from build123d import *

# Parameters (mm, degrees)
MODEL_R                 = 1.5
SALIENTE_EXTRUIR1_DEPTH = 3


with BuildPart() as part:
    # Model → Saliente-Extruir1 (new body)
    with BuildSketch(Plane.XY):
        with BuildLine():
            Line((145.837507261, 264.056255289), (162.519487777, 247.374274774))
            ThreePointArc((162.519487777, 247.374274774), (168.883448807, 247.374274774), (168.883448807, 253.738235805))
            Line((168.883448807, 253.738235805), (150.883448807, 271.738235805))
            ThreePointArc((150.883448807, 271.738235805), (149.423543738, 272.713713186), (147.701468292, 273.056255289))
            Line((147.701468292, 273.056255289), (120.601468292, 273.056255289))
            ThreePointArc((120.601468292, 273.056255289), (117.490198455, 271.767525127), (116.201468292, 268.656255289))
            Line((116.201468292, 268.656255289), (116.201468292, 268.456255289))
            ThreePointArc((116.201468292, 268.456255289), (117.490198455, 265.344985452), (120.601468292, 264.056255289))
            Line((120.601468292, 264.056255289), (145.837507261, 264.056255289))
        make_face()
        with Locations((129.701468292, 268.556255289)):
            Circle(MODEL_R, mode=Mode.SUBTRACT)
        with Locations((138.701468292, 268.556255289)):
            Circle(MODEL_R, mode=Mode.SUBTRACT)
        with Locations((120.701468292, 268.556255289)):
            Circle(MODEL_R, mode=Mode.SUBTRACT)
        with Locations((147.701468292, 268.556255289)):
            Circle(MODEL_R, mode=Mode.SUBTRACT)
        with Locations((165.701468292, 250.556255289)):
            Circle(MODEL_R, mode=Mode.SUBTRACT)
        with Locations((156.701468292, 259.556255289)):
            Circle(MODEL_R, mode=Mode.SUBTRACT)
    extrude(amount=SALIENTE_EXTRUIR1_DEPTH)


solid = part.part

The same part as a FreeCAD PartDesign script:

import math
import FreeCAD as App
import Part
import Sketcher
from FreeCAD import Vector
Q = App.Units.Quantity

doc = App.newDocument("Part")
body = doc.addObject("PartDesign::Body", "Body")

sketch1 = body.newObject("Sketcher::SketchObject", "Sketch")
sketch1.AttachmentSupport = (doc.getObject("XY_Plane"), [""])
sketch1.MapMode = "FlatFace"
sketch1.addGeometry(Part.LineSegment(Vector(145.84, 264.06, 0), Vector(162.52, 247.37, 0)), False)
sketch1.addGeometry(Part.ArcOfCircle(Part.Circle(Vector(165.7, 250.56, 0), Vector(0, 0, 1), 4.5), math.radians(-135), math.radians(45)), False)
sketch1.addGeometry(Part.LineSegment(Vector(168.88, 253.74, 0), Vector(150.88, 271.74, 0)), False)
sketch1.addGeometry(Part.ArcOfCircle(Part.Circle(Vector(147.7, 268.56, 0), Vector(0, 0, 1), 4.5), math.radians(45), math.radians(90)), False)
sketch1.addGeometry(Part.LineSegment(Vector(147.7, 273.06, 0), Vector(120.6, 273.06, 0)), False)
sketch1.addGeometry(Part.ArcOfCircle(Part.Circle(Vector(120.6, 268.66, 0), Vector(0, 0, 1), 4.4), math.radians(90), math.radians(180)), False)
sketch1.addGeometry(Part.LineSegment(Vector(116.2, 268.66, 0), Vector(116.2, 268.46, 0)), False)
sketch1.addGeometry(Part.ArcOfCircle(Part.Circle(Vector(120.6, 268.46, 0), Vector(0, 0, 1), 4.4), math.radians(-180), math.radians(-90)), False)
sketch1.addGeometry(Part.LineSegment(Vector(120.6, 264.06, 0), Vector(145.84, 264.06, 0)), False)
sketch1.addGeometry(Part.Circle(Vector(165.7, 250.56, 0), Vector(0, 0, 1), 1.5), False)
sketch1.addGeometry(Part.Circle(Vector(156.7, 259.56, 0), Vector(0, 0, 1), 1.5), False)
sketch1.addGeometry(Part.Circle(Vector(120.7, 268.56, 0), Vector(0, 0, 1), 1.5), False)
sketch1.addGeometry(Part.Circle(Vector(129.7, 268.56, 0), Vector(0, 0, 1), 1.5), False)
sketch1.addGeometry(Part.Circle(Vector(138.7, 268.56, 0), Vector(0, 0, 1), 1.5), False)
sketch1.addGeometry(Part.Circle(Vector(147.7, 268.56, 0), Vector(0, 0, 1), 1.5), False)
sketch1.addConstraint(Sketcher.Constraint("Tangent", 0, 2, 1, 1))
sketch1.addConstraint(Sketcher.Constraint("Tangent", 1, 2, 2, 1))
sketch1.addConstraint(Sketcher.Constraint("Tangent", 2, 2, 3, 1))
sketch1.addConstraint(Sketcher.Constraint("Tangent", 3, 2, 4, 1))
sketch1.addConstraint(Sketcher.Constraint("Tangent", 4, 2, 5, 1))
sketch1.addConstraint(Sketcher.Constraint("Tangent", 5, 2, 6, 1))
sketch1.addConstraint(Sketcher.Constraint("Tangent", 6, 2, 7, 1))
sketch1.addConstraint(Sketcher.Constraint("Tangent", 7, 2, 8, 1))
sketch1.addConstraint(Sketcher.Constraint("Coincident", 8, 2, 0, 1))
sketch1.addConstraint(Sketcher.Constraint("Horizontal", 4))
sketch1.addConstraint(Sketcher.Constraint("Vertical", 6))
sketch1.addConstraint(Sketcher.Constraint("Horizontal", 8))
sketch1.addConstraint(Sketcher.Constraint("Coincident", 9, 3, 1, 3))
sketch1.addConstraint(Sketcher.Constraint("Coincident", 14, 3, 3, 3))
sketch1.addConstraint(Sketcher.Constraint("Equal", 1, 3))
sketch1.addConstraint(Sketcher.Constraint("Equal", 5, 7))
sketch1.addConstraint(Sketcher.Constraint("Equal", 9, 10))
sketch1.addConstraint(Sketcher.Constraint("Equal", 10, 11))
sketch1.addConstraint(Sketcher.Constraint("Equal", 11, 12))
sketch1.addConstraint(Sketcher.Constraint("Equal", 12, 13))
sketch1.addConstraint(Sketcher.Constraint("Equal", 13, 14))
sketch1.addConstraint(Sketcher.Constraint("Parallel", 0, 2))
sketch1.addConstraint(Sketcher.Constraint("Horizontal", 3, 3, 11, 3))
sketch1.addConstraint(Sketcher.Constraint("Horizontal", 11, 3, 12, 3))
sketch1.addConstraint(Sketcher.Constraint("Horizontal", 12, 3, 13, 3))
sketch1.addConstraint(Sketcher.Constraint("Diameter", 9, 3.0))
sketch1.addConstraint(Sketcher.Constraint("Radius", 1, 4.5))
sketch1.addConstraint(Sketcher.Constraint("Radius", 5, 4.4))
sketch1.addConstraint(Sketcher.Constraint("Angle", 0, Q("-45 deg")))
sketch1.addConstraint(Sketcher.Constraint("DistanceX", 4, 2, 4, 1, 27.1))
sketch1.addConstraint(Sketcher.Constraint("DistanceY", 6, 2, 6, 1, 0.2))
sketch1.addConstraint(Sketcher.Constraint("DistanceX", 3, 3, 1, 3, 18.0))
sketch1.addConstraint(Sketcher.Constraint("DistanceX", 10, 3, 1, 3, 9.0))
sketch1.addConstraint(Sketcher.Constraint("DistanceY", 1, 3, 10, 3, 9.0))
sketch1.addConstraint(Sketcher.Constraint("DistanceX", 11, 3, 3, 3, 27.0))
sketch1.addConstraint(Sketcher.Constraint("DistanceX", 11, 3, 12, 3, 9.0))
sketch1.addConstraint(Sketcher.Constraint("DistanceX", 12, 3, 13, 3, 9.0))
sketch1.addConstraint(Sketcher.Constraint("DistanceX", -1, 1, 1, 3, 165.701468))
sketch1.addConstraint(Sketcher.Constraint("DistanceY", -1, 1, 1, 3, 250.556255))
pad1 = body.newObject("PartDesign::Pad", "Pad")
pad1.Profile = sketch1
pad1.Length = 3

doc.recompute()
